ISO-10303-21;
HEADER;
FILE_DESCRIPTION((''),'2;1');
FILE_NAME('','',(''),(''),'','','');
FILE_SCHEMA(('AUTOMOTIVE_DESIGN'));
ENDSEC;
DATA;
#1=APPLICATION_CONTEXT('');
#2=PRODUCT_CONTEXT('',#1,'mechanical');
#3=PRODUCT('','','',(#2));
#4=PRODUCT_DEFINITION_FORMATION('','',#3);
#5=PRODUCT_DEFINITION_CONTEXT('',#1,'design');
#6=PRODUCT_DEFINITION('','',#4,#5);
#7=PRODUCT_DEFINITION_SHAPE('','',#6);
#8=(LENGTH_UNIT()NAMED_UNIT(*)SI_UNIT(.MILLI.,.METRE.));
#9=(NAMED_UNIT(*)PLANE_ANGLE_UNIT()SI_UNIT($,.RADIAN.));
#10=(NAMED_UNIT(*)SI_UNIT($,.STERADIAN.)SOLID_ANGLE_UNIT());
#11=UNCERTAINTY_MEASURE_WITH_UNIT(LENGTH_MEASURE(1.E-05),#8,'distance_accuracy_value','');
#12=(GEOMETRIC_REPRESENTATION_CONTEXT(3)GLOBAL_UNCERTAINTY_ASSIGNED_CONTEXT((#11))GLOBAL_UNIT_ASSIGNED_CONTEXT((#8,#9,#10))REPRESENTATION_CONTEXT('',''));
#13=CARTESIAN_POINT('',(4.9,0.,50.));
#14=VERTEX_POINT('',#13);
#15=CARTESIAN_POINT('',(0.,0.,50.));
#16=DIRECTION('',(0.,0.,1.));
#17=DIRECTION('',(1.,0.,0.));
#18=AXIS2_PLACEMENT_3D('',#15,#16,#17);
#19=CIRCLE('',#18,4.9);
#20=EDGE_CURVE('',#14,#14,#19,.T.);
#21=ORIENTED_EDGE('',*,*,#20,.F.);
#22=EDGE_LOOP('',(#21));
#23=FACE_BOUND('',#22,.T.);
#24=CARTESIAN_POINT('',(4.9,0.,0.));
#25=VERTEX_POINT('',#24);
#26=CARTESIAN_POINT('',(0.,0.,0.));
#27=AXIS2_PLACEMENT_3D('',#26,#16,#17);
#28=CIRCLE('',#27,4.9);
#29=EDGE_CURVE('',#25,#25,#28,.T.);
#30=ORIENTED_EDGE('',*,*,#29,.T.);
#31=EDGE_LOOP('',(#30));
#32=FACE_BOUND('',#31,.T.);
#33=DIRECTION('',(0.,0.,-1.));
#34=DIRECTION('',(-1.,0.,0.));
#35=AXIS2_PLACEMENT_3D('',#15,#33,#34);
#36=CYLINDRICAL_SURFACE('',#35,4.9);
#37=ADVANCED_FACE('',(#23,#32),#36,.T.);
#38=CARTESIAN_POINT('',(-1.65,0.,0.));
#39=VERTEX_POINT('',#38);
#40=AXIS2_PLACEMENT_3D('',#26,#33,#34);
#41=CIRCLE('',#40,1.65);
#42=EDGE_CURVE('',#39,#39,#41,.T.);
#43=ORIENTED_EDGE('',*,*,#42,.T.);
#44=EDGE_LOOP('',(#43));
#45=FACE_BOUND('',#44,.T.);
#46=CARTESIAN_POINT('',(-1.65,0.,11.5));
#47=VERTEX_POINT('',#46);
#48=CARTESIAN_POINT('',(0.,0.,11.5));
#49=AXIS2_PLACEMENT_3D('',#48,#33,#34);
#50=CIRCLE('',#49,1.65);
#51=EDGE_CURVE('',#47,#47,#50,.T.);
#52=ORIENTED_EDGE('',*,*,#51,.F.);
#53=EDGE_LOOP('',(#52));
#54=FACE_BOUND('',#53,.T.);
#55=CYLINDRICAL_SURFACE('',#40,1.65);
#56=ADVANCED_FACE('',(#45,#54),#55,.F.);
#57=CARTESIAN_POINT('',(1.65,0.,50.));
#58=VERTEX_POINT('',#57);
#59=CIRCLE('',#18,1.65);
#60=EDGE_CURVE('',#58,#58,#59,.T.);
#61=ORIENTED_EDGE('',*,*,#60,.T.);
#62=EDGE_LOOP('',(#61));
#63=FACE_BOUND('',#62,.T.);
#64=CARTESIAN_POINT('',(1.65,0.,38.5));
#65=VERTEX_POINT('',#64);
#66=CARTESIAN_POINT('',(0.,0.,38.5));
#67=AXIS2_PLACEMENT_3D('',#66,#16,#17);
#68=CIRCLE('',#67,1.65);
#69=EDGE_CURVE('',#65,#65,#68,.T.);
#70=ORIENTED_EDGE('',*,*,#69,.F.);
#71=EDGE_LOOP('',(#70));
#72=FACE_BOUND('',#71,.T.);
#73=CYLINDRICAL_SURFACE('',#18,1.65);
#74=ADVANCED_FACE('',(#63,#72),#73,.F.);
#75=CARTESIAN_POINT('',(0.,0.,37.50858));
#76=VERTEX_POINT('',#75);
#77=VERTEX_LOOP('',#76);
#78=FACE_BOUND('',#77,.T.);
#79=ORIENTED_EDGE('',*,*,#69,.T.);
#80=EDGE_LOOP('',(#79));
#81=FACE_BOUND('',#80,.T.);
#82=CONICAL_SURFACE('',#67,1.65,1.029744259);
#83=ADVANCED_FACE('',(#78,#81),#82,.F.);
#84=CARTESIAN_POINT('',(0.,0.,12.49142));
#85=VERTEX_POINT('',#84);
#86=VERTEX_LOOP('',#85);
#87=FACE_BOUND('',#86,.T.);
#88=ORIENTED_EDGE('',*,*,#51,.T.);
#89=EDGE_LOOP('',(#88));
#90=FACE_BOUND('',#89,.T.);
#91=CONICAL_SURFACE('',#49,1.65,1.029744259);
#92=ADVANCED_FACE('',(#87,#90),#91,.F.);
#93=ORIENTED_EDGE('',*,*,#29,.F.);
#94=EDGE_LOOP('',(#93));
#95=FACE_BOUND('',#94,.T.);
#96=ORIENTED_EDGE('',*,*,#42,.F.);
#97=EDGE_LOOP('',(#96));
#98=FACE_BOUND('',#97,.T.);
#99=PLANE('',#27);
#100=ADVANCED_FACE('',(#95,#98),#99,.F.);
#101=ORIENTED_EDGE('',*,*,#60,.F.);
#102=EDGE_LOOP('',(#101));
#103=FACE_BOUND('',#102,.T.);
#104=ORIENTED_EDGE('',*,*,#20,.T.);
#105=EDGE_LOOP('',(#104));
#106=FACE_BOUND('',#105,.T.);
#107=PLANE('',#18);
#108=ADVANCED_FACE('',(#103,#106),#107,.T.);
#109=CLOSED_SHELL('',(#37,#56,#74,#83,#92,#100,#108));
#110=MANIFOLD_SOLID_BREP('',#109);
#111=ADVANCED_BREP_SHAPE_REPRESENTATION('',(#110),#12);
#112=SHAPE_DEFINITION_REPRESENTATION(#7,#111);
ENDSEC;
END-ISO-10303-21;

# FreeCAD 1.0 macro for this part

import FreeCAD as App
import Part
import Sketcher
from FreeCAD import Vector

doc = App.newDocument("Part")
body = doc.addObject("PartDesign::Body", "Body")

# Sketch on XY plane
sketch1 = body.newObject("Sketcher::SketchObject", "Sketch")
sketch1.AttachmentSupport = (doc.getObject("XY_Plane"), [""])
sketch1.MapMode = "FlatFace"
sketch1.addGeometry(Part.Circle(Vector(0, 0, 0), Vector(0, 0, 1), 4.9), False)
sketch1.addConstraint(Sketcher.Constraint("Coincident", 0, 3, -1, 1))
sketch1.addConstraint(Sketcher.Constraint("Diameter", 0, 9.8))
pad1 = body.newObject("PartDesign::Pad", "Pad")
pad1.Profile = sketch1
pad1.Length = 50

# Sketch on XY plane
sketch2 = body.newObject("Sketcher::SketchObject", "Sketch001")
sketch2.AttachmentSupport = (doc.getObject("XY_Plane"), [""])
sketch2.MapMode = "FlatFace"
sketch2.AttachmentOffset = App.Placement(Vector(0, 0, 50), App.Rotation())
sketch2.addGeometry(Part.Circle(Vector(0, 0, 0), Vector(0, 0, 1), 1.65), False)
sketch2.addConstraint(Sketcher.Constraint("Coincident", 0, 3, -1, 1))
sketch2.addConstraint(Sketcher.Constraint("Diameter", 0, 3.3))
doc.recompute()
hole = body.newObject("PartDesign::Hole", "Hole")
hole.Profile = sketch2
hole.ThreadType = "None"
hole.Diameter = 3.3
hole.DepthType = "Dimension"
hole.Depth = 11.5
hole.DrillPoint = "Angled"
hole.DrillPointAngle = 118

# Sketch on XY plane
sketch3 = body.newObject("Sketcher::SketchObject", "Sketch002")
sketch3.AttachmentSupport = (doc.getObject("XY_Plane"), [""])
sketch3.MapMode = "FlatFace"
sketch3.addGeometry(Part.Circle(Vector(0, 0, 0), Vector(0, 0, 1), 1.65), False)
sketch3.addConstraint(Sketcher.Constraint("Coincident", 0, 3, -1, 1))
sketch3.addConstraint(Sketcher.Constraint("Diameter", 0, 3.3))
doc.recompute()
hole2 = body.newObject("PartDesign::Hole", "Hole001")
hole2.Profile = sketch3
hole2.ThreadType = "None"
hole2.Diameter = 3.3
hole2.DepthType = "Dimension"
hole2.Depth = 11.5
hole2.DrillPoint = "Angled"
hole2.DrillPointAngle = 118
hole2.Reversed = True

doc.recompute()
